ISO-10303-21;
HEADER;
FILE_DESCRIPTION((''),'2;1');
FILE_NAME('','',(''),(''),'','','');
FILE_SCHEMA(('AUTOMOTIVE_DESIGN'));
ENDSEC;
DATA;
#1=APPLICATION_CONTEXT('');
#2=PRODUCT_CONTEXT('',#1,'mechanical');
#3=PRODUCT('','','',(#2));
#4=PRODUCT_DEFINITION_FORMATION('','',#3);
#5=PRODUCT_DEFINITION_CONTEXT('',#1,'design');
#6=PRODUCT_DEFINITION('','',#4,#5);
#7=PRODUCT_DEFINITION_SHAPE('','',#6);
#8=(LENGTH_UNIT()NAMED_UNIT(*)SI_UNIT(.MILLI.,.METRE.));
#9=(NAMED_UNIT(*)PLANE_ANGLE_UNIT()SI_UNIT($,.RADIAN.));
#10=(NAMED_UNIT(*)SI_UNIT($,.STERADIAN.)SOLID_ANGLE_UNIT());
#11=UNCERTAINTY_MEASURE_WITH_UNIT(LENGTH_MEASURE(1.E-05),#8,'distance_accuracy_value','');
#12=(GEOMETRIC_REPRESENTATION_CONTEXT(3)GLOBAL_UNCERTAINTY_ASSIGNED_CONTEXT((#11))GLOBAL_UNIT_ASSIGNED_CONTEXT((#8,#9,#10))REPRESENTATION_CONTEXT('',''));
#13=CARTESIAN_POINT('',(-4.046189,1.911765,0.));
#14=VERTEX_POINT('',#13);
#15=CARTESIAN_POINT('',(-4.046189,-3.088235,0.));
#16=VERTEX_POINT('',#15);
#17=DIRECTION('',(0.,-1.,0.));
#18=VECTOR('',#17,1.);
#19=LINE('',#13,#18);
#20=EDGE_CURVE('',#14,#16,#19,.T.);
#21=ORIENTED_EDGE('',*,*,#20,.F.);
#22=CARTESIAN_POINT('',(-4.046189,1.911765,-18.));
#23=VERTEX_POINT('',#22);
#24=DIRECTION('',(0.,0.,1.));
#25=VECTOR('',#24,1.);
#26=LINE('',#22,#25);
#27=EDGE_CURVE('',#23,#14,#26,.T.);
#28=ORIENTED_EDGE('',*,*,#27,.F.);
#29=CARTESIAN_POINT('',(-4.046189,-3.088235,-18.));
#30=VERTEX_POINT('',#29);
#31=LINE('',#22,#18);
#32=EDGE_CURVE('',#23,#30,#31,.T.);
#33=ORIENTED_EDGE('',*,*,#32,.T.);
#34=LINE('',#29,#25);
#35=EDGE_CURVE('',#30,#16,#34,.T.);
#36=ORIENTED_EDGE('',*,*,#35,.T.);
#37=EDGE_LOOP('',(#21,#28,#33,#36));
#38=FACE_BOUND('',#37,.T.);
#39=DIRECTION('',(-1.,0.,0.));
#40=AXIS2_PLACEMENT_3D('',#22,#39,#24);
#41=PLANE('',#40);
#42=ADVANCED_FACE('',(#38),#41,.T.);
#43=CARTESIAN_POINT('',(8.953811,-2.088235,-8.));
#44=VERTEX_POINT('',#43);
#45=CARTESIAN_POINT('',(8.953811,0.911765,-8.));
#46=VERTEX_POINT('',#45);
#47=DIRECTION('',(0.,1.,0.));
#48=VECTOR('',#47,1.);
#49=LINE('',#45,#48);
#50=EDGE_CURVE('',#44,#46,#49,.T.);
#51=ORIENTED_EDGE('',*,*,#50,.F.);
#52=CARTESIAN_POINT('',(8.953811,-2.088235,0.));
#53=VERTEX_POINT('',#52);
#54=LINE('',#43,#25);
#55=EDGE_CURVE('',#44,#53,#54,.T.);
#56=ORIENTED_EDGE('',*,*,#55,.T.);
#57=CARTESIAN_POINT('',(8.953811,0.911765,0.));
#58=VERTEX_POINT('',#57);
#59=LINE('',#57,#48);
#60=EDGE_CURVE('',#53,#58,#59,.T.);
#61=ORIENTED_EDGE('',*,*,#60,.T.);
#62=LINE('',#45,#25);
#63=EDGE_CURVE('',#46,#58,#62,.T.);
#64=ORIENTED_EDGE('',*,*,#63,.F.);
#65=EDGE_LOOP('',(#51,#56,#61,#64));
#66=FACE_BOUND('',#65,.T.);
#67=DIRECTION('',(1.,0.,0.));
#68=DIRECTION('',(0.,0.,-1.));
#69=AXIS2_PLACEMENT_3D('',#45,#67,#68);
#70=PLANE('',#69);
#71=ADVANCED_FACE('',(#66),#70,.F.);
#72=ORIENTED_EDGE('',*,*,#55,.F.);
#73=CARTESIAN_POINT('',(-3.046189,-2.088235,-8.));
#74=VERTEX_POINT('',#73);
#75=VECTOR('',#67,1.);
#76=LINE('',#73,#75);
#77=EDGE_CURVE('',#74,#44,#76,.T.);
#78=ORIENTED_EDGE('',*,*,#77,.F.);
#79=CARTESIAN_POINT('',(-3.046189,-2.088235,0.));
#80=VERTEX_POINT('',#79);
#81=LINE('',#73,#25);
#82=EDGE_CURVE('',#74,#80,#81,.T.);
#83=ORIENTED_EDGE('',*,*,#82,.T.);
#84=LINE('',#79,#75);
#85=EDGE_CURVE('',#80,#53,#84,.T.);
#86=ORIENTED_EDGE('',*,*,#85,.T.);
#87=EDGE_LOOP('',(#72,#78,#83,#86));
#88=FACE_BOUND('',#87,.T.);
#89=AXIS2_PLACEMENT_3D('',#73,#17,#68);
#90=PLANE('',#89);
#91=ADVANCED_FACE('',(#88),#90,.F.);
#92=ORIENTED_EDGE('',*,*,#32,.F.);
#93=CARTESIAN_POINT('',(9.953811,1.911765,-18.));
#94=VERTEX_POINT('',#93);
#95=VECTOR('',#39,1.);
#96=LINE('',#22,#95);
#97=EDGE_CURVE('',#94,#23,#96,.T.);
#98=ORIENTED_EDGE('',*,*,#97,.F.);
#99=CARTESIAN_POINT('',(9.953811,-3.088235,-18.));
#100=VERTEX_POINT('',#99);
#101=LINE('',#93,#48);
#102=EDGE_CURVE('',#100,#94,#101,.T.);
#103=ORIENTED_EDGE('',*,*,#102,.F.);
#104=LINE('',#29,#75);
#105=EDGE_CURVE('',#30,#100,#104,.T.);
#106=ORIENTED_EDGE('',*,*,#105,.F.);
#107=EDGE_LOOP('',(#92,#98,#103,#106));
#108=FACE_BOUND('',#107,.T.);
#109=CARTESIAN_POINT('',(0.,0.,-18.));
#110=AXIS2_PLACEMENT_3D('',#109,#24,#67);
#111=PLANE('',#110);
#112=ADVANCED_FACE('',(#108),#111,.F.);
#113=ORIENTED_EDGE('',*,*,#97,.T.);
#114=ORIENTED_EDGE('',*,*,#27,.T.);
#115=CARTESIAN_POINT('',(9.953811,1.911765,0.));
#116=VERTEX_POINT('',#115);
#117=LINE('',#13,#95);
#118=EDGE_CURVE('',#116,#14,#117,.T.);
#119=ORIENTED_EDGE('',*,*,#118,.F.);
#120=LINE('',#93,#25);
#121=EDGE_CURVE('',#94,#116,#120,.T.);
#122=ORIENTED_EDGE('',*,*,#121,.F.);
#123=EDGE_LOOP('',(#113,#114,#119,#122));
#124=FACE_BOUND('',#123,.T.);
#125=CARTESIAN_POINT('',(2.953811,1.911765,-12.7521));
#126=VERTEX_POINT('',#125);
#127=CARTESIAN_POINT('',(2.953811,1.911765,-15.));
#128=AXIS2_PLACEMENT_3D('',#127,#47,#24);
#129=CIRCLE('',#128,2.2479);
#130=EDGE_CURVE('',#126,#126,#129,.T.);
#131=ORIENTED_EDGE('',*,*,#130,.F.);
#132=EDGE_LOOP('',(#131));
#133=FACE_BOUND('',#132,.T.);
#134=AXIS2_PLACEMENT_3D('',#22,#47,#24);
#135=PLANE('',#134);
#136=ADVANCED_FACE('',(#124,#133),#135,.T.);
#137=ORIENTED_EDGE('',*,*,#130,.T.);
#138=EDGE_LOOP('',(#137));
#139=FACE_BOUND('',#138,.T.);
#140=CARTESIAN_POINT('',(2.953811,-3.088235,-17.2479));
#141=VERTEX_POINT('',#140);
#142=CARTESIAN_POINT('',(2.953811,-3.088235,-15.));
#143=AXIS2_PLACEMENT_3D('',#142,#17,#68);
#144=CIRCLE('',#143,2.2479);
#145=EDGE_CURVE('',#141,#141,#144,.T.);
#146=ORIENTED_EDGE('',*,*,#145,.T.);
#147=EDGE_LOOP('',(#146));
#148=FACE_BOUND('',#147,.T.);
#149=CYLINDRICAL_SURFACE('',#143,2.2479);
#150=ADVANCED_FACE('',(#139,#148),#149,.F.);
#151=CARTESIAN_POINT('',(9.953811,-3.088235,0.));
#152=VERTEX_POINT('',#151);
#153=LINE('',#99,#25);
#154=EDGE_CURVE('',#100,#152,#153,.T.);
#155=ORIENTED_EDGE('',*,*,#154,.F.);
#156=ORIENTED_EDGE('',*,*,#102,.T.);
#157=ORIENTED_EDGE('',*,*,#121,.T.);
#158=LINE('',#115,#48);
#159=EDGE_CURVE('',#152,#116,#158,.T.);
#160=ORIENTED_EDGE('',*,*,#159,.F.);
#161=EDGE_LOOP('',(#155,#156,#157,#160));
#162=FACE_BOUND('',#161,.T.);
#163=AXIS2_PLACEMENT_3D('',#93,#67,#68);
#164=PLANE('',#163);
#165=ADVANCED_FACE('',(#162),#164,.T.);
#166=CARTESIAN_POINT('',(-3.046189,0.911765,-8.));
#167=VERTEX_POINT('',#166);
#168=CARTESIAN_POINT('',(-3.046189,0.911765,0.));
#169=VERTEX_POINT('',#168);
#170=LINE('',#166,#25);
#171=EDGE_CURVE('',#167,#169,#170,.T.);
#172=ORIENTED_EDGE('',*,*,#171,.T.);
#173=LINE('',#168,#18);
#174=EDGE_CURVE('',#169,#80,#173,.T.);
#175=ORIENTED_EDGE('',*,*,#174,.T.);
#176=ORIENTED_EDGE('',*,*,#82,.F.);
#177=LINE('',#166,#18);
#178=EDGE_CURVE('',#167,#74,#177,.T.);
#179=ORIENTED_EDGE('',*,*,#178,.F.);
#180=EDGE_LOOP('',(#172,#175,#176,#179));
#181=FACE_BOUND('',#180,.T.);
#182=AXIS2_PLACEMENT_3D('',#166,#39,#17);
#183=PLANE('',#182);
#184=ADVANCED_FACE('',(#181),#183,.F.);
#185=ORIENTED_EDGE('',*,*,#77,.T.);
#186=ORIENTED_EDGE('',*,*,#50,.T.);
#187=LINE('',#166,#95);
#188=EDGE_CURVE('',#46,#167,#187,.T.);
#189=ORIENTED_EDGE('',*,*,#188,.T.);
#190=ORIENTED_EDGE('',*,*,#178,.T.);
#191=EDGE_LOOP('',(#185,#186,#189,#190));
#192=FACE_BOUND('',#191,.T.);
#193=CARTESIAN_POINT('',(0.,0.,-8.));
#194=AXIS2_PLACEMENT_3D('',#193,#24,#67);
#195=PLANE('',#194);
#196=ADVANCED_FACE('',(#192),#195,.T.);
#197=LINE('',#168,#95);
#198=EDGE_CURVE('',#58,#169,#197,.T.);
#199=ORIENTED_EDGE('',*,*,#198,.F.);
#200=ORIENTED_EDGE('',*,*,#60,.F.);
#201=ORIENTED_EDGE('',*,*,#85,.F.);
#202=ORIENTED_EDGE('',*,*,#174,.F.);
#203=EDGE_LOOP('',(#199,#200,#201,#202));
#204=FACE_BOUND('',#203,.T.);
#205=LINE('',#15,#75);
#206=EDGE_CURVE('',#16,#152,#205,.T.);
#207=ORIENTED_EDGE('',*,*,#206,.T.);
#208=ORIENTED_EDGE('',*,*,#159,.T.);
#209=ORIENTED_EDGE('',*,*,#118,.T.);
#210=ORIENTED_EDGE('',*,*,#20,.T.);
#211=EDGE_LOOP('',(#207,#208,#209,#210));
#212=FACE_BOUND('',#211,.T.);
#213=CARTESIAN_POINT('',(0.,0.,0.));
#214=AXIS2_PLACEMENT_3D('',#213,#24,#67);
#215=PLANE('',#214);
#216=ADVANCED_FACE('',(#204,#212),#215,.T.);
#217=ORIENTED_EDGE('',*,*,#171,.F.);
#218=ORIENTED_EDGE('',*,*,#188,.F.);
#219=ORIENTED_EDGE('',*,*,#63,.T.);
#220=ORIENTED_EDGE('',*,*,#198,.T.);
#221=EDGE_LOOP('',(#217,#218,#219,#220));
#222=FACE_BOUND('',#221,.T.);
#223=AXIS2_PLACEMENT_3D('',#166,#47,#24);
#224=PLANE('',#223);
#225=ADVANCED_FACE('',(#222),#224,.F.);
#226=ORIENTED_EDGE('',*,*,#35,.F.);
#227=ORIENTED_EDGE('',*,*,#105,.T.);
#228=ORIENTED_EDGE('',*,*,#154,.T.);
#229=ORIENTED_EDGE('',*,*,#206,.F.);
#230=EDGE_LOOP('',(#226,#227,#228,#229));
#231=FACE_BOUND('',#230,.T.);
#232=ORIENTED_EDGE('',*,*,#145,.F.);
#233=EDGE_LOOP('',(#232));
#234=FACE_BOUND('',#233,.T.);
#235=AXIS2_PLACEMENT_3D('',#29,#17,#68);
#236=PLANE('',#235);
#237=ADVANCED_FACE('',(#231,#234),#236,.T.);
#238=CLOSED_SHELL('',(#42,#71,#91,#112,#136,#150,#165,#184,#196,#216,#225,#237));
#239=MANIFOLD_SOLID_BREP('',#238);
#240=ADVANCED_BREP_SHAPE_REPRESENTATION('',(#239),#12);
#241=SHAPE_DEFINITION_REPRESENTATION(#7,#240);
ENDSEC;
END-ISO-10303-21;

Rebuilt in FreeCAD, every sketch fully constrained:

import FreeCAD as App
import Part
import Sketcher
from FreeCAD import Vector

doc = App.newDocument("Part")
body = doc.addObject("PartDesign::Body", "Body")

# Sketch on XY plane
sketch1 = body.newObject("Sketcher::SketchObject", "Sketch")
sketch1.AttachmentSupport = (doc.getObject("XY_Plane"), [""])
sketch1.MapMode = "FlatFace"
sketch1.addGeometry([
    Part.LineSegment(Vector(-4, 2, 0), Vector(-4, -3, 0)),
    Part.LineSegment(Vector(-4, -3, 0), Vector(10, -3, 0)),
    Part.LineSegment(Vector(10, -3, 0), Vector(10, 2, 0)),
    Part.LineSegment(Vector(10, 2, 0), Vector(-4, 2, 0)),
], False)
sketch1.addConstraint([
    Sketcher.Constraint("Coincident", 0, 2, 1, 1),
    Sketcher.Constraint("Coincident", 1, 2, 2, 1),
    Sketcher.Constraint("Coincident", 2, 2, 3, 1),
    Sketcher.Constraint("Coincident", 3, 2, 0, 1),
    Sketcher.Constraint("Vertical", 0),
    Sketcher.Constraint("Horizontal", 1),
    Sketcher.Constraint("Vertical", 2),
    Sketcher.Constraint("Horizontal", 3),
    Sketcher.Constraint("DistanceX", 1, 1, 1, 2, 14.0),
    Sketcher.Constraint("DistanceY", 0, 2, 0, 1, 5.0),
    Sketcher.Constraint("DistanceX", 0, 2, -1, 1, 4.046189),
    Sketcher.Constraint("DistanceY", 0, 2, -1, 1, 3.088235),
])
pad1 = body.newObject("PartDesign::Pad", "Pad")
pad1.Profile = sketch1
pad1.Length = 18
pad1.Reversed = True

# Sketch on XY plane
sketch2 = body.newObject("Sketcher::SketchObject", "Sketch001")
sketch2.AttachmentSupport = (doc.getObject("XY_Plane"), [""])
sketch2.MapMode = "FlatFace"
sketch2.addGeometry([
    Part.LineSegment(Vector(-3, 0.9, 0), Vector(-3, -2.1, 0)),
    Part.LineSegment(Vector(-3, -2.1, 0), Vector(9, -2.1, 0)),
    Part.LineSegment(Vector(9, -2.1, 0), Vector(9, 0.9, 0)),
    Part.LineSegment(Vector(9, 0.9, 0), Vector(-3, 0.9, 0)),
], False)
sketch2.addConstraint([
    Sketcher.Constraint("Coincident", 0, 2, 1, 1),
    Sketcher.Constraint("Coincident", 1, 2, 2, 1),
    Sketcher.Constraint("Coincident", 2, 2, 3, 1),
    Sketcher.Constraint("Coincident", 3, 2, 0, 1),
    Sketcher.Constraint("Vertical", 0),
    Sketcher.Constraint("Horizontal", 1),
    Sketcher.Constraint("Vertical", 2),
    Sketcher.Constraint("Horizontal", 3),
    Sketcher.Constraint("DistanceX", 1, 1, 1, 2, 12.0),
    Sketcher.Constraint("DistanceY", 0, 2, 0, 1, 3.0),
    Sketcher.Constraint("DistanceX", 0, 2, -1, 1, 3.046189),
    Sketcher.Constraint("DistanceY", 0, 2, -1, 1, 2.088235),
])
pocket1 = body.newObject("PartDesign::Pocket", "Pocket")
pocket1.Profile = sketch2
pocket1.Length = 8

# Sketch on XZ plane
sketch3 = body.newObject("Sketcher::SketchObject", "Sketch002")
sketch3.AttachmentSupport = (doc.getObject("XZ_Plane"), [""])
sketch3.MapMode = "FlatFace"
sketch3.AttachmentOffset = App.Placement(Vector(0, 0, 3.088235), App.Rotation())
sketch3.addGeometry(Part.Circle(Vector(3, -15, 0), Vector(0, 0, 1), 2.2), False)
sketch3.addConstraint([
    Sketcher.Constraint("DistanceY", 0, 3, -1, 1, 15.0),
    Sketcher.Constraint("Diameter", 0, 4.4958),
    Sketcher.Constraint("DistanceX", -1, 1, 0, 3, 2.953811),
])
doc.recompute()
hole = body.newObject("PartDesign::Hole", "Hole")
hole.Profile = sketch3
hole.ThreadType = "None"
hole.Diameter = 4.4958
hole.DepthType = "Dimension"
hole.Depth = 17
hole.DrillPoint = "Angled"
hole.DrillPointAngle = 118

doc.recompute()
